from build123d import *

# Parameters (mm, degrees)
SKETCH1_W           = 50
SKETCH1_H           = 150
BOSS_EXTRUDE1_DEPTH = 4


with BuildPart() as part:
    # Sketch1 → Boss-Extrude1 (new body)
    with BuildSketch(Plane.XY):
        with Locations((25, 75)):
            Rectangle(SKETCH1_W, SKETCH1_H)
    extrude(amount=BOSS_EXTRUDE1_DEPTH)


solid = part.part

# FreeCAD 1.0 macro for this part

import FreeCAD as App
import Part
import Sketcher


def add_polygon(sketch, points):
    """Adds a closed chain of lines whose ends are joined by coincident constraints."""
    first, n = sketch.GeometryCount, len(points)
    for a, b in zip(points, points[1:] + points[:1]):
        sketch.addGeometry(Part.LineSegment(App.Vector(*a, 0), App.Vector(*b, 0)), False)
    for i in range(n):
        sketch.addConstraint(Sketcher.Constraint("Coincident", first + i, 2, first + (i + 1) % n, 1))

doc = App.newDocument("Part")
body = doc.addObject("PartDesign::Body", "Body")

# Sketch on XY plane
sketch1 = body.newObject("Sketcher::SketchObject", "Sketch")
sketch1.AttachmentSupport = (doc.getObject("XY_Plane"), [""])
sketch1.MapMode = "FlatFace"
add_polygon(sketch1, [(0, 150), (0, 0), (50, 0), (50, 150)])  # lines 0-3
sketch1.addConstraint([
    Sketcher.Constraint("Vertical", 0),
    Sketcher.Constraint("Horizontal", 1),
    Sketcher.Constraint("Vertical", 2),
    Sketcher.Constraint("Horizontal", 3),
    Sketcher.Constraint("Coincident", 0, 2, -1, 1),
    Sketcher.Constraint("DistanceX", 1, 1, 1, 2, 50.0),
    Sketcher.Constraint("DistanceY", 0, 2, 0, 1, 150.0),
])
pad1 = body.newObject("PartDesign::Pad", "Pad")
pad1.Profile = sketch1
pad1.Length = 4

doc.recompute()
